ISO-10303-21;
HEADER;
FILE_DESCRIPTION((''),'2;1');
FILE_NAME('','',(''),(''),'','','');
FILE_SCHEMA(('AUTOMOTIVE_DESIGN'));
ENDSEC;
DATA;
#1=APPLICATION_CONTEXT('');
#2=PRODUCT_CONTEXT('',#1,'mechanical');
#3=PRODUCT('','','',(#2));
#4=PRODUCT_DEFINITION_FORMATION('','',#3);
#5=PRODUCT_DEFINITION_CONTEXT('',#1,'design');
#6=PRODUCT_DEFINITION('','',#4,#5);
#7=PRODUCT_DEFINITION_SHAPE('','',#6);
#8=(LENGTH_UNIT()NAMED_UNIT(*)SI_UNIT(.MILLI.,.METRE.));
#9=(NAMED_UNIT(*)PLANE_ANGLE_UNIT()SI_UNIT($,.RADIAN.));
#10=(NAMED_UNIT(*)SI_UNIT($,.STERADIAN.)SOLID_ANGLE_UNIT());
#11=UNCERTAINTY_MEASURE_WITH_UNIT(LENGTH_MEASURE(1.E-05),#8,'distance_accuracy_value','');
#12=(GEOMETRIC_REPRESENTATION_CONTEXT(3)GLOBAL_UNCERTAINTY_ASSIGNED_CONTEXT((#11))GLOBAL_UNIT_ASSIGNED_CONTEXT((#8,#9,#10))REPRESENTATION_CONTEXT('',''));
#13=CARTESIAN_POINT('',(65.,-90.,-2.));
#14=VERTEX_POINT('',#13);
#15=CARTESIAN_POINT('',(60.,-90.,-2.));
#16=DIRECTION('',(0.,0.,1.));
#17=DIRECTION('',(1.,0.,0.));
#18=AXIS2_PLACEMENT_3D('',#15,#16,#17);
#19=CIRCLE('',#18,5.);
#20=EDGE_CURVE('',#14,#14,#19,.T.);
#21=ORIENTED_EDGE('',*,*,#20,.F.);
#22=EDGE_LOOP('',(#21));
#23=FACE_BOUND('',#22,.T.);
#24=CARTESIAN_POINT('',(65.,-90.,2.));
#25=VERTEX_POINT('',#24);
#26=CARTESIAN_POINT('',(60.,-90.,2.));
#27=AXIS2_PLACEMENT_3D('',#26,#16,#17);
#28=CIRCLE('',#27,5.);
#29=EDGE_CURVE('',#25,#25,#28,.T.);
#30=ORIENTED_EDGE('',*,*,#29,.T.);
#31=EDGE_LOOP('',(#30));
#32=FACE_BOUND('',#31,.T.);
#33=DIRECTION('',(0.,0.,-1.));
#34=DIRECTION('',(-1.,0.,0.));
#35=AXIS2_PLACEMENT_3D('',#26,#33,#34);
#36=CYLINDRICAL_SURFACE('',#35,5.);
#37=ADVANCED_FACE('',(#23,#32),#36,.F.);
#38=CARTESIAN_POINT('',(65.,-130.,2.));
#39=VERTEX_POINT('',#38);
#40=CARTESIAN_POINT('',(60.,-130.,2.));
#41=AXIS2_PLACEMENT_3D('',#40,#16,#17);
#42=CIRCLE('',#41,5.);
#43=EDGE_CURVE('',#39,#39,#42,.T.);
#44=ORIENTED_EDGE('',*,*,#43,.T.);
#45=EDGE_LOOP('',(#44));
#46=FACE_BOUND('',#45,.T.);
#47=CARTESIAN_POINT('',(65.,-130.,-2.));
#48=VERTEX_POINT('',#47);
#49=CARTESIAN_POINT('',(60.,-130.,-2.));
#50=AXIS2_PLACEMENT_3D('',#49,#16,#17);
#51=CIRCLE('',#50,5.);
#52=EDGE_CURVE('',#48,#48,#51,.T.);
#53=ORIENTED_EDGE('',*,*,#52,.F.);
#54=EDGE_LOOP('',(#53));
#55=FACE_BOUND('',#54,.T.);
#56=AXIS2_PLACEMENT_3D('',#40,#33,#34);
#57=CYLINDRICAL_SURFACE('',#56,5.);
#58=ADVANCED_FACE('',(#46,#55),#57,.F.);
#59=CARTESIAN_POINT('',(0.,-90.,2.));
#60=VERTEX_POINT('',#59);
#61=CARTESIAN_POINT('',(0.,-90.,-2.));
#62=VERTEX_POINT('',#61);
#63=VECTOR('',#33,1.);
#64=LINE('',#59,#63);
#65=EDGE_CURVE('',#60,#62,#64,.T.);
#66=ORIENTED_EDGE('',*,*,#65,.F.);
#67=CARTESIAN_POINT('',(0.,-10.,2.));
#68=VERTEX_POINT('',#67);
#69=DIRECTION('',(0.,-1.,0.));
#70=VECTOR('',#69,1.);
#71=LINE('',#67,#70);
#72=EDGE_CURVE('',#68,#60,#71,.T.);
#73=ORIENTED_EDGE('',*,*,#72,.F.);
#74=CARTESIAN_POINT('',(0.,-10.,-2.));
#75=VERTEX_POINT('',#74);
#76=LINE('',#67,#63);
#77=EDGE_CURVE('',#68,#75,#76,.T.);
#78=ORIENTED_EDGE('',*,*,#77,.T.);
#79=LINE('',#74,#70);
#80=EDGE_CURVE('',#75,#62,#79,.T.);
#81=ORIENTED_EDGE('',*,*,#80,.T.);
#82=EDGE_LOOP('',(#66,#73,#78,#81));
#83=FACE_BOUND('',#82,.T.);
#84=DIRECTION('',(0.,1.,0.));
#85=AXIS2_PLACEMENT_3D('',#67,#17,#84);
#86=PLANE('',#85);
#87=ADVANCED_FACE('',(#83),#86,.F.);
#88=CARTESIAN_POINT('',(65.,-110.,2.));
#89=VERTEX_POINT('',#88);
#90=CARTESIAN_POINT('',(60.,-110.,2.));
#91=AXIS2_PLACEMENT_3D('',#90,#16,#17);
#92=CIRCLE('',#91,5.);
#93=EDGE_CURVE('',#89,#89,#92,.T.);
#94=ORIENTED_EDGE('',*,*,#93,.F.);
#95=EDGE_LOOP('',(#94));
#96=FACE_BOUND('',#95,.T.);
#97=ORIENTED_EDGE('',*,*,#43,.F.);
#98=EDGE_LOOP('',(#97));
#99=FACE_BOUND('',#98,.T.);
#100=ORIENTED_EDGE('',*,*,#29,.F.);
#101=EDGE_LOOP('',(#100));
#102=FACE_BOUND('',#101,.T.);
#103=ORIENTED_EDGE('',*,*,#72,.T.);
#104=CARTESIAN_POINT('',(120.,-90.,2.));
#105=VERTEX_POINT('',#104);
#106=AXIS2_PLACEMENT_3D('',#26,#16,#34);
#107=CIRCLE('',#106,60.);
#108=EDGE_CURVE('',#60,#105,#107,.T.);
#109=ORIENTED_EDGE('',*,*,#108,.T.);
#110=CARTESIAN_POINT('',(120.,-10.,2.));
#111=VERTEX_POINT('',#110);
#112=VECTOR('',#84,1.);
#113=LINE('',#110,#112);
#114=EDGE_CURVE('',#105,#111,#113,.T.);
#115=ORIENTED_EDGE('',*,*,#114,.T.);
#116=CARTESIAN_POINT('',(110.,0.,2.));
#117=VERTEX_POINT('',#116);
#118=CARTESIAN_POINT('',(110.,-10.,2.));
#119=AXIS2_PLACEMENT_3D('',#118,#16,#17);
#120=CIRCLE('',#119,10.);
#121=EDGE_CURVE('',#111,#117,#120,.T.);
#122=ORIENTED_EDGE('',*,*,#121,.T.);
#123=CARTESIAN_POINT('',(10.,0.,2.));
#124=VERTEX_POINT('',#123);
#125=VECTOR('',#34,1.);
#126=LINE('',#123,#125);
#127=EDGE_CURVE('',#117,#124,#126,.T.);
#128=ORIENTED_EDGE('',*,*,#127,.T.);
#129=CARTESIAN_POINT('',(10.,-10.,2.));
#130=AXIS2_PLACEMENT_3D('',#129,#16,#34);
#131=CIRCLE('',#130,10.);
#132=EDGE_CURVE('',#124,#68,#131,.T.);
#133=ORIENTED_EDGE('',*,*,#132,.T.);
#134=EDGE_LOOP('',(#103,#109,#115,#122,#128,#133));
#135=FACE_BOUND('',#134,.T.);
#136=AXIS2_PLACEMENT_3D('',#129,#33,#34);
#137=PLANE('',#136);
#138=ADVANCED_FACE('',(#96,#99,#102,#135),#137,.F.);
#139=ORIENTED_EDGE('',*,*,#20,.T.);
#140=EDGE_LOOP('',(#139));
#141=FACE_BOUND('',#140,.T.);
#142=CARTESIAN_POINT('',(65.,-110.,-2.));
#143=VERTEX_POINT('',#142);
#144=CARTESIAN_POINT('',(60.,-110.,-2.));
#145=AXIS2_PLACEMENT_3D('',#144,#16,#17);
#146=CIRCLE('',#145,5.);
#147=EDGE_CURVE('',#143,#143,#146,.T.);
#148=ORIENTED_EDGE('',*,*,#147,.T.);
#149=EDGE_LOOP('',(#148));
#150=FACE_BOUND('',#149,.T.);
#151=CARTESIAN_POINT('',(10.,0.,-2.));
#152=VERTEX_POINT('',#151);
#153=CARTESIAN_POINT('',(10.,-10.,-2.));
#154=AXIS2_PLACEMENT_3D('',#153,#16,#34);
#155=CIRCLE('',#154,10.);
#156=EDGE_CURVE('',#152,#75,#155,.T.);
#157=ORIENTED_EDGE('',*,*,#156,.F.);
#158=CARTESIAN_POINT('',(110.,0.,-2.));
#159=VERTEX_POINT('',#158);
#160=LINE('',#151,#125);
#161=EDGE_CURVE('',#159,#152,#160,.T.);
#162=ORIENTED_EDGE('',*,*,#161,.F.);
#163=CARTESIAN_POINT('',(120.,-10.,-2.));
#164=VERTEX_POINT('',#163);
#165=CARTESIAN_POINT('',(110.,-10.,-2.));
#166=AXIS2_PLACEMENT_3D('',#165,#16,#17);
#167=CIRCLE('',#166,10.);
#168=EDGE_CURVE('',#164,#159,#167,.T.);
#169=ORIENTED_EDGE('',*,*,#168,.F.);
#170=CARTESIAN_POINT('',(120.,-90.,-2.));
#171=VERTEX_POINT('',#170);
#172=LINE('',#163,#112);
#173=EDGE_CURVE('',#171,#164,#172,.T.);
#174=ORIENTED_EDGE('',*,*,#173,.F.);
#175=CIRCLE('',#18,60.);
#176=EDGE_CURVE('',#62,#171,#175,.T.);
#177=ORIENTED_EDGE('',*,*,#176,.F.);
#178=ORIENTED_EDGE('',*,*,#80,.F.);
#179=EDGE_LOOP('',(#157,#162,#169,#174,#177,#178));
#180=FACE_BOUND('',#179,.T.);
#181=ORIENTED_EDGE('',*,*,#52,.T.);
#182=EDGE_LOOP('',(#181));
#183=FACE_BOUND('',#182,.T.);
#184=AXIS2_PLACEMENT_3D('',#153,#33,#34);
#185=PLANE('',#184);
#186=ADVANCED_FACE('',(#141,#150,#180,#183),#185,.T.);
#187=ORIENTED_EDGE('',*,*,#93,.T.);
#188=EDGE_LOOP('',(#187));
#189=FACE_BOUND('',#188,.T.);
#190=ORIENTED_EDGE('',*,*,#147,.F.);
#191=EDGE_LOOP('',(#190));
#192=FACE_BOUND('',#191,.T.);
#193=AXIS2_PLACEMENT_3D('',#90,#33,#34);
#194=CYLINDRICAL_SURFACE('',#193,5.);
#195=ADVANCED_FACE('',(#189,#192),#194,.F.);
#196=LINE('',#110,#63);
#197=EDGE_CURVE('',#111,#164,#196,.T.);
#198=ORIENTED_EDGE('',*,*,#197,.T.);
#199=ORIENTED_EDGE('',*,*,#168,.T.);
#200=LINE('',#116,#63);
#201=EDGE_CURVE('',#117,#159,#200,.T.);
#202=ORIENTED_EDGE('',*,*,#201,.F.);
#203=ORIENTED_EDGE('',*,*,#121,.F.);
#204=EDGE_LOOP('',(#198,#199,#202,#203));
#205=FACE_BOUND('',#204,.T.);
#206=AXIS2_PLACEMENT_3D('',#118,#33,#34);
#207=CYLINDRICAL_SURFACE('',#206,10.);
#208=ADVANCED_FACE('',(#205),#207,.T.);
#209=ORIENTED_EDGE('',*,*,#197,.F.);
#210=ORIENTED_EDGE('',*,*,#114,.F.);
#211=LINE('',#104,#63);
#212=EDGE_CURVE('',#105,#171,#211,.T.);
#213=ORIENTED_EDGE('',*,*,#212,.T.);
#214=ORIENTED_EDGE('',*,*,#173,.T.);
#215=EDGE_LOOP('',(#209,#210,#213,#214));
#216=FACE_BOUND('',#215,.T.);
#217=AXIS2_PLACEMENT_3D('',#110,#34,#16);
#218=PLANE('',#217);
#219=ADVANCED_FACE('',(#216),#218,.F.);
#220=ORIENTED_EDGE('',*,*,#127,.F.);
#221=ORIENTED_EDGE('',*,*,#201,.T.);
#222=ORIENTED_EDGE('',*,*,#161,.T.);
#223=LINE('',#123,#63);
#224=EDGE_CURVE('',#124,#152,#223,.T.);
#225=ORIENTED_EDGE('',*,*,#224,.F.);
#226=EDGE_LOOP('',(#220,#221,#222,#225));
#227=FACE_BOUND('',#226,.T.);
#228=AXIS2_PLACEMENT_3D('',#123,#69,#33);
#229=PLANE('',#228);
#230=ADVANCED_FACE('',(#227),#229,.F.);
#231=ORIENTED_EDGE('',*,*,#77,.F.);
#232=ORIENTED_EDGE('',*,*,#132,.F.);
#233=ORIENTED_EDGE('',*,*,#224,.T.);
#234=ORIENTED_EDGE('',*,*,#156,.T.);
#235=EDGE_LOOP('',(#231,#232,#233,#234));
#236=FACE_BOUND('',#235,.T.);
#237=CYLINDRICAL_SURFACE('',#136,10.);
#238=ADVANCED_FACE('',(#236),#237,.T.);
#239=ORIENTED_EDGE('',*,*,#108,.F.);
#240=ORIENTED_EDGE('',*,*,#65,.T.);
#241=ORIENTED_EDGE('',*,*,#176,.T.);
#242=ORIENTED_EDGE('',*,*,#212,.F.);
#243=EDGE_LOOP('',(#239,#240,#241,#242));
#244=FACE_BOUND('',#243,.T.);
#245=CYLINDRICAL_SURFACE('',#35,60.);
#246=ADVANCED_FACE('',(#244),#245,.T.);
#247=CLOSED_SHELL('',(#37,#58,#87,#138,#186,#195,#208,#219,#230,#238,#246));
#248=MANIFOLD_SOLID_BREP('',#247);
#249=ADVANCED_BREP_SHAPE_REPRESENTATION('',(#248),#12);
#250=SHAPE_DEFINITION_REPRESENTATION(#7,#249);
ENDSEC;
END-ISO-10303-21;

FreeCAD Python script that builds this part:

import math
import FreeCAD as App
import Part
import Sketcher
from FreeCAD import Vector

doc = App.newDocument("Part")
body = doc.addObject("PartDesign::Body", "Body")

sketch1 = body.newObject("Sketcher::SketchObject", "Sketch")
sketch1.AttachmentSupport = (doc.getObject("XY_Plane"), [""])
sketch1.MapMode = "FlatFace"
sketch1.addGeometry([
    Part.LineSegment(Vector(110, 0, 0), Vector(10, 0, 0)),
    Part.ArcOfCircle(Part.Circle(Vector(10, -10, 0), Vector(0, 0, 1), 10), math.radians(90), math.radians(180)),
    Part.LineSegment(Vector(0, -10, 0), Vector(0, -90, 0)),
    Part.ArcOfCircle(Part.Circle(Vector(60, -90, 0), Vector(0, 0, 1), 60), math.radians(-180), math.radians(-90)),
    Part.ArcOfCircle(Part.Circle(Vector(60, -90, 0), Vector(0, 0, 1), 60), math.radians(-90), math.radians(0)),
    Part.LineSegment(Vector(120, -90, 0), Vector(120, -10, 0)),
    Part.ArcOfCircle(Part.Circle(Vector(110, -10, 0), Vector(0, 0, 1), 10), math.radians(0), math.radians(90)),
    Part.Circle(Vector(60, -130, 0), Vector(0, 0, 1), 5),
    Part.Circle(Vector(60, -110, 0), Vector(0, 0, 1), 5),
    Part.Circle(Vector(60, -90, 0), Vector(0, 0, 1), 5),
], False)
sketch1.addConstraint([
    Sketcher.Constraint("Tangent", 0, 2, 1, 1),
    Sketcher.Constraint("Tangent", 1, 2, 2, 1),
    Sketcher.Constraint("Tangent", 2, 2, 3, 1),
    Sketcher.Constraint("Tangent", 3, 2, 4, 1),
    Sketcher.Constraint("Tangent", 4, 2, 5, 1),
    Sketcher.Constraint("Tangent", 5, 2, 6, 1),
    Sketcher.Constraint("Tangent", 6, 2, 0, 1),
    Sketcher.Constraint("Horizontal", 0),
    Sketcher.Constraint("Vertical", 2),
    Sketcher.Constraint("Vertical", 5),
    Sketcher.Constraint("Coincident", 9, 3, 3, 3),
    Sketcher.Constraint("Equal", 3, 4),
    Sketcher.Constraint("Equal", 1, 6),
    Sketcher.Constraint("Equal", 7, 8),
    Sketcher.Constraint("Equal", 8, 9),
    Sketcher.Constraint("PointOnObject", 0, 2, -1),
    Sketcher.Constraint("PointOnObject", 1, 2, -2),
    Sketcher.Constraint("Vertical", 4, 3, 7, 3),
    Sketcher.Constraint("Vertical", 7, 3, 8, 3),
    Sketcher.Constraint("Vertical", 9, 3, 3, 2),
    Sketcher.Constraint("Diameter", 7, 10.0),
    Sketcher.Constraint("Radius", 1, 10.0),
    Sketcher.Constraint("Radius", 3, 60.0),
    Sketcher.Constraint("DistanceY", 2, 2, 2, 1, 80.0),
    Sketcher.Constraint("DistanceY", 7, 3, -1, 1, 130.0),
    Sketcher.Constraint("DistanceY", 8, 3, -1, 1, 110.0),
])
pad1 = body.newObject("PartDesign::Pad", "Pad")
pad1.Profile = sketch1
pad1.Length = 4
pad1.Midplane = True

doc.recompute()
